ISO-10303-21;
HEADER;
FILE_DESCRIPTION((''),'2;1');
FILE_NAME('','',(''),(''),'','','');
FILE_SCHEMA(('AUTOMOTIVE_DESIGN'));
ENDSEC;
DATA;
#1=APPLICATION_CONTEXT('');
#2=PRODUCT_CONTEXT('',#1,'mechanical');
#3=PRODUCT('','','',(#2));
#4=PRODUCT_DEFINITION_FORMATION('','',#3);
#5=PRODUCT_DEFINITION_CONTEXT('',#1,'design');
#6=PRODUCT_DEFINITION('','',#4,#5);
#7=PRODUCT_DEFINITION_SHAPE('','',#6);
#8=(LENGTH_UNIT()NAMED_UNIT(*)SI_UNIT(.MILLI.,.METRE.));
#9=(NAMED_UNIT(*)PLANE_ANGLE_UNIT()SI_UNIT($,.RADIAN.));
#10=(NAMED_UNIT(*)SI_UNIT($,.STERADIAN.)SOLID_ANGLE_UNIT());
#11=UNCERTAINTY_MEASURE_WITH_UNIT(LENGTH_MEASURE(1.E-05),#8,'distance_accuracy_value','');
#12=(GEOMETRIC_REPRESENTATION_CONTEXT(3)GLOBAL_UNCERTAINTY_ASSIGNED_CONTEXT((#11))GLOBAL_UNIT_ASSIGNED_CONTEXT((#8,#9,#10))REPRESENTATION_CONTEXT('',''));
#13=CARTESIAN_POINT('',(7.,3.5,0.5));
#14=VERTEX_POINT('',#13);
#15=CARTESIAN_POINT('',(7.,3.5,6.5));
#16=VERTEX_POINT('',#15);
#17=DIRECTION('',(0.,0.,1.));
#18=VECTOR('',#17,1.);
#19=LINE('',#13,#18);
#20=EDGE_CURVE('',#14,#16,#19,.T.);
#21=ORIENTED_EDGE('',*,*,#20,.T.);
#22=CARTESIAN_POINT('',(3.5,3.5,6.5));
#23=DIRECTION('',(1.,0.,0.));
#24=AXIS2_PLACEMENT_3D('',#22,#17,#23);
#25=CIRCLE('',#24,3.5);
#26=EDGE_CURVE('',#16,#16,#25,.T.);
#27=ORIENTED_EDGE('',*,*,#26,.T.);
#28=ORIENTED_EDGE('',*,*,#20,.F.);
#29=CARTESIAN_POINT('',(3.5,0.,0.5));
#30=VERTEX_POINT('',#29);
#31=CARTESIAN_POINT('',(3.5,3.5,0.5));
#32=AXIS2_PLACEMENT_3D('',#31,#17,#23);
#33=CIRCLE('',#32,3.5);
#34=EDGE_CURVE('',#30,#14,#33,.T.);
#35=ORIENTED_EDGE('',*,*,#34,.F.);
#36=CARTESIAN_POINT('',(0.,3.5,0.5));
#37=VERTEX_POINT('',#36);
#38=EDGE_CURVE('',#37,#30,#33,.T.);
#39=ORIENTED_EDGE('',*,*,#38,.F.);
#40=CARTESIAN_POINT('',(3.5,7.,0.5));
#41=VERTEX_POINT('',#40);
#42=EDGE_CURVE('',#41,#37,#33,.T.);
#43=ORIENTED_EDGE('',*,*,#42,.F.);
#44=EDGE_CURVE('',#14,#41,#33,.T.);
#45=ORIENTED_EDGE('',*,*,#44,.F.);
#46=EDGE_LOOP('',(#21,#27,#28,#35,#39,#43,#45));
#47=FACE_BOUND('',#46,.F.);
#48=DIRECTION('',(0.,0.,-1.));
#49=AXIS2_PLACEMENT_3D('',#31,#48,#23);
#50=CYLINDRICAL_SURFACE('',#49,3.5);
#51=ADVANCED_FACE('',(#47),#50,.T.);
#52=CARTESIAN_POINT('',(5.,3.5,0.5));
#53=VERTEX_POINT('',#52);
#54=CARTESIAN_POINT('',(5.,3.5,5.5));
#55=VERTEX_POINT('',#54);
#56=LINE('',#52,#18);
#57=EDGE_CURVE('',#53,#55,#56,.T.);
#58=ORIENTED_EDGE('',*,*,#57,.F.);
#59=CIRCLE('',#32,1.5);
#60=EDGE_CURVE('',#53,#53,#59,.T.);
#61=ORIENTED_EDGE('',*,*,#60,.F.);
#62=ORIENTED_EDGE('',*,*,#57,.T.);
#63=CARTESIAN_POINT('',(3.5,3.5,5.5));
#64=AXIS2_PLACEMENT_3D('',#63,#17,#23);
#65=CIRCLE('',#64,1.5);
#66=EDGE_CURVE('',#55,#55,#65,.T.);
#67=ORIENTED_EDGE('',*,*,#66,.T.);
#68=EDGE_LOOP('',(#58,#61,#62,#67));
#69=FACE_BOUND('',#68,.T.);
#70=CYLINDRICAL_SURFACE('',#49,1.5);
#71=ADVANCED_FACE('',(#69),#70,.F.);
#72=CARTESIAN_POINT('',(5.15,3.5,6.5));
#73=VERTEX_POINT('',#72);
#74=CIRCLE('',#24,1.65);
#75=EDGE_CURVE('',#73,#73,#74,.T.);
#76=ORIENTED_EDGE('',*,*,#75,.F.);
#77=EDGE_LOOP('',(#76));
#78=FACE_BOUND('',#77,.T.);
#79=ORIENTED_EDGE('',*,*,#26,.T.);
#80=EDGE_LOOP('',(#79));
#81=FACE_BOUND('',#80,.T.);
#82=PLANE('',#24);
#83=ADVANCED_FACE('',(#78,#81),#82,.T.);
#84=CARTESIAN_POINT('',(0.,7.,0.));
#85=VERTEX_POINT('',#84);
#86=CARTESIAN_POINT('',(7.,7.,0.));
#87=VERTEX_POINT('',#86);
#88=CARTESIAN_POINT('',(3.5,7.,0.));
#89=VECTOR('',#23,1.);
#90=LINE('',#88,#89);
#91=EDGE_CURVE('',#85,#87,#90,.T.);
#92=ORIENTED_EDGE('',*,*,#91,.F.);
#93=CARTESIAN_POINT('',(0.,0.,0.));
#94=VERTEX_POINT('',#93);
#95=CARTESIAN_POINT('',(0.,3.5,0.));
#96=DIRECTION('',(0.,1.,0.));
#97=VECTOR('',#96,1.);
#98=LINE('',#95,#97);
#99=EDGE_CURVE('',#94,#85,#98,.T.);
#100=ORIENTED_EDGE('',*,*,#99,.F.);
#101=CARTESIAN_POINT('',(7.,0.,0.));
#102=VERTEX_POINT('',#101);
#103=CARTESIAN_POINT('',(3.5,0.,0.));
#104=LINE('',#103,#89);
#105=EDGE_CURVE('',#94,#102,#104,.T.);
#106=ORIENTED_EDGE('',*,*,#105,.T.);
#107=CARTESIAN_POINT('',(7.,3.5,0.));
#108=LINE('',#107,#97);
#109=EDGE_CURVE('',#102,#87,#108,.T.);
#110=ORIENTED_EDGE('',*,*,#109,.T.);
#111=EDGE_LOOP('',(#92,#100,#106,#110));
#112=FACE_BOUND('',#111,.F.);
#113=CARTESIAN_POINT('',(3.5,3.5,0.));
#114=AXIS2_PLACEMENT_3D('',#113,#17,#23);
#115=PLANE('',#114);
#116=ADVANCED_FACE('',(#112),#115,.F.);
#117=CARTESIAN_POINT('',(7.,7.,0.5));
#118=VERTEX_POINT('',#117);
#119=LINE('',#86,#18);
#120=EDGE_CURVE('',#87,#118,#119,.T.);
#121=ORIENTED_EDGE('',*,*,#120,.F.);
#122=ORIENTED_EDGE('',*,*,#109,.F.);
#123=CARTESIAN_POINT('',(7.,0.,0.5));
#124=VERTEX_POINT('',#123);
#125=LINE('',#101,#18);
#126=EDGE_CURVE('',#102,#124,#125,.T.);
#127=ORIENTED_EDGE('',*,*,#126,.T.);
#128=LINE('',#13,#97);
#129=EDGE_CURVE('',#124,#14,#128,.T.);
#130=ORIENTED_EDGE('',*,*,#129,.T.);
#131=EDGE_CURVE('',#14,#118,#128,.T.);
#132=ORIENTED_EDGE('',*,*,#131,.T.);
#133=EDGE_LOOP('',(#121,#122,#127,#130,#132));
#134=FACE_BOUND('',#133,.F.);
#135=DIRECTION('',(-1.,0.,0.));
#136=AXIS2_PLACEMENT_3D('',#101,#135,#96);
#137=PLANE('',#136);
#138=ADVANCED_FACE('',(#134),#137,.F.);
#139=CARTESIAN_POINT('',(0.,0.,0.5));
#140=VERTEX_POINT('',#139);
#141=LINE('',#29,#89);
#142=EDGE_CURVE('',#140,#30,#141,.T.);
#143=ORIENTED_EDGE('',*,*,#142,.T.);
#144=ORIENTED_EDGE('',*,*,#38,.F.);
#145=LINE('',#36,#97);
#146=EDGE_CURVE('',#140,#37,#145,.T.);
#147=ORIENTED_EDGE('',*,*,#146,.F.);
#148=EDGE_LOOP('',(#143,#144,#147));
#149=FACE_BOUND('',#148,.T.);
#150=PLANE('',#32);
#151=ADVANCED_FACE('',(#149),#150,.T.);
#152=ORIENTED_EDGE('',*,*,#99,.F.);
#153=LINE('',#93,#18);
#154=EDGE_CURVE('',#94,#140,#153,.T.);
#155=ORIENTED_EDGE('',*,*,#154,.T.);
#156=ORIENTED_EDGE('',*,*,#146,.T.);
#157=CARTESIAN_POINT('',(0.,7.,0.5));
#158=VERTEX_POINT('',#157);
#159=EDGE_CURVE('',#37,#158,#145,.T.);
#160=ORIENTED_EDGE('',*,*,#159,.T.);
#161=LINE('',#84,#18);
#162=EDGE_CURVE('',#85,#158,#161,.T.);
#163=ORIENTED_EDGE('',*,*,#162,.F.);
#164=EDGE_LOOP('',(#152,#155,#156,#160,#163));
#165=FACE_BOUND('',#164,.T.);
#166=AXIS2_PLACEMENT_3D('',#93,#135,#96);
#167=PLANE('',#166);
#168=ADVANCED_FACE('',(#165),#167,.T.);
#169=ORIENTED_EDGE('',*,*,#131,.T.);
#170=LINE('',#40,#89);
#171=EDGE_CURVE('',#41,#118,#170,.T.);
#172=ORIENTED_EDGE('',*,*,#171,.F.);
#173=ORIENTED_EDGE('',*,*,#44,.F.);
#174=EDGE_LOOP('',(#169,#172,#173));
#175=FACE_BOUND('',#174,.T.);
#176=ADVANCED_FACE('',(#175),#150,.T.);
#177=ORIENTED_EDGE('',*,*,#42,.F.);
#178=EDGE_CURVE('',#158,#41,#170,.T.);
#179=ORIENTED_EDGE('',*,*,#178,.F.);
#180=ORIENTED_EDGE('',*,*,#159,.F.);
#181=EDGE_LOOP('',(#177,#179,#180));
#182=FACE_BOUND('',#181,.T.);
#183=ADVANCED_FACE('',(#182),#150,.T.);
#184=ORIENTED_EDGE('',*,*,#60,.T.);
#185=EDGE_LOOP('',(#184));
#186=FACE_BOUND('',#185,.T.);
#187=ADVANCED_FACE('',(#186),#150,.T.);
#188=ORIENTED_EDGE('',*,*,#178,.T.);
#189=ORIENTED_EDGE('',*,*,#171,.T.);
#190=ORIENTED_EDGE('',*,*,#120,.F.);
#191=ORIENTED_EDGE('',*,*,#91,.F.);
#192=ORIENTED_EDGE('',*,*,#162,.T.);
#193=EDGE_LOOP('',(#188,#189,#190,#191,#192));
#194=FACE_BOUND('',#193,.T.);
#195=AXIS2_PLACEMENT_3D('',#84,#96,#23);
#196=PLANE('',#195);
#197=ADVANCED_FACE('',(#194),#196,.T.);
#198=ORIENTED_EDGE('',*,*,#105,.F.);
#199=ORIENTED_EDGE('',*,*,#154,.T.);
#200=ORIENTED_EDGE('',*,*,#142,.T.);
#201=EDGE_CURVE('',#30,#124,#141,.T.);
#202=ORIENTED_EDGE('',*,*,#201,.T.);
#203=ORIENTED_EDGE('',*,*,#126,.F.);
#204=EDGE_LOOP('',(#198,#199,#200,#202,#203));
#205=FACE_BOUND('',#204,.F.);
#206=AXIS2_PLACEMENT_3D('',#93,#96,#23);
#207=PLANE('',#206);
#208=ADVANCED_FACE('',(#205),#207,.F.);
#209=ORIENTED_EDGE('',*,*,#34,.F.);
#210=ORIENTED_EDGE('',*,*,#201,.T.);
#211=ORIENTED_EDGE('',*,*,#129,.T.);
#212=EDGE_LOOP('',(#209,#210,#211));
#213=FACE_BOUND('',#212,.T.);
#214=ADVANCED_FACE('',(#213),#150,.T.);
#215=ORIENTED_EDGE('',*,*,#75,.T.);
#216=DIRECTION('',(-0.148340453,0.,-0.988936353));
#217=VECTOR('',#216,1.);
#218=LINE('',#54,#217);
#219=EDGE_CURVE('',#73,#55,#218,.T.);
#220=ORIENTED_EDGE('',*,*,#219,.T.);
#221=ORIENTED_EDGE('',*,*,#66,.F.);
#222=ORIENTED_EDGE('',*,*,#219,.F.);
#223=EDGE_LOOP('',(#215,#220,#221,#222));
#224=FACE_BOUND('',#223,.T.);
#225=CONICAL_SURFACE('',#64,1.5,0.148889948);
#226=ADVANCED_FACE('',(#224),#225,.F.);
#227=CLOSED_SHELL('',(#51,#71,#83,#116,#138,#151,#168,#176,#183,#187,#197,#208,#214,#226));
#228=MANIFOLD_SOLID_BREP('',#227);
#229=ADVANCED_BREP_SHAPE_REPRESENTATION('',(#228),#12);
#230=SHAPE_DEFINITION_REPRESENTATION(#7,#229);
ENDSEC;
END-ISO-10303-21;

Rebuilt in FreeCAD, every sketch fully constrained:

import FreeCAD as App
import Part
import Sketcher


def edges_at(feature, points):
    """Names of the edges that pass closest to the given points."""
    edges = feature.Shape.Edges
    near = lambda p: min(range(len(edges)), key=lambda i: edges[i].distToShape(Part.Vertex(*p))[0])
    return sorted({f"Edge{near(p) + 1}" for p in points})

doc = App.newDocument("Part")
params = doc.addObject("Spreadsheet::Sheet", "Params")
for row, (alias, value) in enumerate([
    ("sketch1_width", "7 mm"),
    ("pad1_length", "0.5 mm"),
    ("sketch2_diameter", "7 mm"),
    ("sketch2_diameter2", "3 mm"),
    ("pad2_length", "6 mm"),
    ("chamfer_size", "0.15 mm"),
    ("chamfer_size2", "1 mm"),
], start=1):
    params.set(f"A{row}", alias)
    params.set(f"B{row}", "=" + value)
    params.setAlias(f"B{row}", alias)

body = doc.addObject("PartDesign::Body", "Body")

sketch1 = doc.addObject("Sketcher::SketchObject", "Sketch")
body.addObject(sketch1)
sketch1.AttachmentSupport = (doc.XY_Plane, [""])
sketch1.MapMode = "FlatFace"
sketch1.addGeometry([
    Part.LineSegment(App.Vector(0, 7, 0), App.Vector(0, 0, 0)),
    Part.LineSegment(App.Vector(0, 0, 0), App.Vector(7, 0, 0)),
    Part.LineSegment(App.Vector(7, 0, 0), App.Vector(7, 7, 0)),
    Part.LineSegment(App.Vector(7, 7, 0), App.Vector(0, 7, 0)),
], False)
sketch1.addConstraint([
    Sketcher.Constraint("Coincident", 0, 2, 1, 1),
    Sketcher.Constraint("Coincident", 1, 2, 2, 1),
    Sketcher.Constraint("Coincident", 2, 2, 3, 1),
    Sketcher.Constraint("Coincident", 3, 2, 0, 1),
    Sketcher.Constraint("Vertical", 0),
    Sketcher.Constraint("Horizontal", 1),
    Sketcher.Constraint("Vertical", 2),
    Sketcher.Constraint("Horizontal", 3),
    Sketcher.Constraint("Coincident", 0, 2, -1, 1),
    Sketcher.Constraint("Equal", 3, 0),
    Sketcher.Constraint("DistanceX", 1, 1, 1, 2, 7.0),
])
sketch1.setExpression("Constraints[10]", "Params.sketch1_width")
pad1 = doc.addObject("PartDesign::Pad", "Pad")
body.addObject(pad1)
pad1.Profile = sketch1
pad1.setExpression("Length", "Params.pad1_length")

sketch2 = doc.addObject("Sketcher::SketchObject", "Sketch001")
body.addObject(sketch2)
sketch2.AttachmentSupport = (doc.XY_Plane, [""])
sketch2.MapMode = "FlatFace"
sketch2.AttachmentOffset = App.Placement(App.Vector(0, 0, 0.5), App.Rotation())
sketch2.addGeometry([
    Part.Circle(App.Vector(3.5, 3.5, 0), App.Vector(0, 0, 1), 3.5),
    Part.Circle(App.Vector(3.5, 3.5, 0), App.Vector(0, 0, 1), 1.5),
], False)
sketch2.addConstraint([
    Sketcher.Constraint("Coincident", 1, 3, 0, 3),
    Sketcher.Constraint("Diameter", 0, 7.0),
    Sketcher.Constraint("Diameter", 1, 3.0),
    Sketcher.Constraint("DistanceX", -1, 1, 0, 3, 3.5),
    Sketcher.Constraint("DistanceY", -1, 1, 0, 3, 3.5),
])
sketch2.setExpression("Constraints[1]", "Params.sketch2_diameter")
sketch2.setExpression("Constraints[2]", "Params.sketch2_diameter2")
pad2 = doc.addObject("PartDesign::Pad", "Pad001")
body.addObject(pad2)
pad2.Profile = sketch2
pad2.setExpression("Length", "Params.pad2_length")
doc.recompute()

chamfer = doc.addObject("PartDesign::Chamfer", "Chamfer")
body.addObject(chamfer)
chamfer.Base = (pad2, edges_at(pad2, [(2, 3.5, 6.5)]))
chamfer.ChamferType = "Two distances"
chamfer.setExpression("Size", "Params.chamfer_size")
chamfer.setExpression("Size2", "Params.chamfer_size2")

doc.recompute()
